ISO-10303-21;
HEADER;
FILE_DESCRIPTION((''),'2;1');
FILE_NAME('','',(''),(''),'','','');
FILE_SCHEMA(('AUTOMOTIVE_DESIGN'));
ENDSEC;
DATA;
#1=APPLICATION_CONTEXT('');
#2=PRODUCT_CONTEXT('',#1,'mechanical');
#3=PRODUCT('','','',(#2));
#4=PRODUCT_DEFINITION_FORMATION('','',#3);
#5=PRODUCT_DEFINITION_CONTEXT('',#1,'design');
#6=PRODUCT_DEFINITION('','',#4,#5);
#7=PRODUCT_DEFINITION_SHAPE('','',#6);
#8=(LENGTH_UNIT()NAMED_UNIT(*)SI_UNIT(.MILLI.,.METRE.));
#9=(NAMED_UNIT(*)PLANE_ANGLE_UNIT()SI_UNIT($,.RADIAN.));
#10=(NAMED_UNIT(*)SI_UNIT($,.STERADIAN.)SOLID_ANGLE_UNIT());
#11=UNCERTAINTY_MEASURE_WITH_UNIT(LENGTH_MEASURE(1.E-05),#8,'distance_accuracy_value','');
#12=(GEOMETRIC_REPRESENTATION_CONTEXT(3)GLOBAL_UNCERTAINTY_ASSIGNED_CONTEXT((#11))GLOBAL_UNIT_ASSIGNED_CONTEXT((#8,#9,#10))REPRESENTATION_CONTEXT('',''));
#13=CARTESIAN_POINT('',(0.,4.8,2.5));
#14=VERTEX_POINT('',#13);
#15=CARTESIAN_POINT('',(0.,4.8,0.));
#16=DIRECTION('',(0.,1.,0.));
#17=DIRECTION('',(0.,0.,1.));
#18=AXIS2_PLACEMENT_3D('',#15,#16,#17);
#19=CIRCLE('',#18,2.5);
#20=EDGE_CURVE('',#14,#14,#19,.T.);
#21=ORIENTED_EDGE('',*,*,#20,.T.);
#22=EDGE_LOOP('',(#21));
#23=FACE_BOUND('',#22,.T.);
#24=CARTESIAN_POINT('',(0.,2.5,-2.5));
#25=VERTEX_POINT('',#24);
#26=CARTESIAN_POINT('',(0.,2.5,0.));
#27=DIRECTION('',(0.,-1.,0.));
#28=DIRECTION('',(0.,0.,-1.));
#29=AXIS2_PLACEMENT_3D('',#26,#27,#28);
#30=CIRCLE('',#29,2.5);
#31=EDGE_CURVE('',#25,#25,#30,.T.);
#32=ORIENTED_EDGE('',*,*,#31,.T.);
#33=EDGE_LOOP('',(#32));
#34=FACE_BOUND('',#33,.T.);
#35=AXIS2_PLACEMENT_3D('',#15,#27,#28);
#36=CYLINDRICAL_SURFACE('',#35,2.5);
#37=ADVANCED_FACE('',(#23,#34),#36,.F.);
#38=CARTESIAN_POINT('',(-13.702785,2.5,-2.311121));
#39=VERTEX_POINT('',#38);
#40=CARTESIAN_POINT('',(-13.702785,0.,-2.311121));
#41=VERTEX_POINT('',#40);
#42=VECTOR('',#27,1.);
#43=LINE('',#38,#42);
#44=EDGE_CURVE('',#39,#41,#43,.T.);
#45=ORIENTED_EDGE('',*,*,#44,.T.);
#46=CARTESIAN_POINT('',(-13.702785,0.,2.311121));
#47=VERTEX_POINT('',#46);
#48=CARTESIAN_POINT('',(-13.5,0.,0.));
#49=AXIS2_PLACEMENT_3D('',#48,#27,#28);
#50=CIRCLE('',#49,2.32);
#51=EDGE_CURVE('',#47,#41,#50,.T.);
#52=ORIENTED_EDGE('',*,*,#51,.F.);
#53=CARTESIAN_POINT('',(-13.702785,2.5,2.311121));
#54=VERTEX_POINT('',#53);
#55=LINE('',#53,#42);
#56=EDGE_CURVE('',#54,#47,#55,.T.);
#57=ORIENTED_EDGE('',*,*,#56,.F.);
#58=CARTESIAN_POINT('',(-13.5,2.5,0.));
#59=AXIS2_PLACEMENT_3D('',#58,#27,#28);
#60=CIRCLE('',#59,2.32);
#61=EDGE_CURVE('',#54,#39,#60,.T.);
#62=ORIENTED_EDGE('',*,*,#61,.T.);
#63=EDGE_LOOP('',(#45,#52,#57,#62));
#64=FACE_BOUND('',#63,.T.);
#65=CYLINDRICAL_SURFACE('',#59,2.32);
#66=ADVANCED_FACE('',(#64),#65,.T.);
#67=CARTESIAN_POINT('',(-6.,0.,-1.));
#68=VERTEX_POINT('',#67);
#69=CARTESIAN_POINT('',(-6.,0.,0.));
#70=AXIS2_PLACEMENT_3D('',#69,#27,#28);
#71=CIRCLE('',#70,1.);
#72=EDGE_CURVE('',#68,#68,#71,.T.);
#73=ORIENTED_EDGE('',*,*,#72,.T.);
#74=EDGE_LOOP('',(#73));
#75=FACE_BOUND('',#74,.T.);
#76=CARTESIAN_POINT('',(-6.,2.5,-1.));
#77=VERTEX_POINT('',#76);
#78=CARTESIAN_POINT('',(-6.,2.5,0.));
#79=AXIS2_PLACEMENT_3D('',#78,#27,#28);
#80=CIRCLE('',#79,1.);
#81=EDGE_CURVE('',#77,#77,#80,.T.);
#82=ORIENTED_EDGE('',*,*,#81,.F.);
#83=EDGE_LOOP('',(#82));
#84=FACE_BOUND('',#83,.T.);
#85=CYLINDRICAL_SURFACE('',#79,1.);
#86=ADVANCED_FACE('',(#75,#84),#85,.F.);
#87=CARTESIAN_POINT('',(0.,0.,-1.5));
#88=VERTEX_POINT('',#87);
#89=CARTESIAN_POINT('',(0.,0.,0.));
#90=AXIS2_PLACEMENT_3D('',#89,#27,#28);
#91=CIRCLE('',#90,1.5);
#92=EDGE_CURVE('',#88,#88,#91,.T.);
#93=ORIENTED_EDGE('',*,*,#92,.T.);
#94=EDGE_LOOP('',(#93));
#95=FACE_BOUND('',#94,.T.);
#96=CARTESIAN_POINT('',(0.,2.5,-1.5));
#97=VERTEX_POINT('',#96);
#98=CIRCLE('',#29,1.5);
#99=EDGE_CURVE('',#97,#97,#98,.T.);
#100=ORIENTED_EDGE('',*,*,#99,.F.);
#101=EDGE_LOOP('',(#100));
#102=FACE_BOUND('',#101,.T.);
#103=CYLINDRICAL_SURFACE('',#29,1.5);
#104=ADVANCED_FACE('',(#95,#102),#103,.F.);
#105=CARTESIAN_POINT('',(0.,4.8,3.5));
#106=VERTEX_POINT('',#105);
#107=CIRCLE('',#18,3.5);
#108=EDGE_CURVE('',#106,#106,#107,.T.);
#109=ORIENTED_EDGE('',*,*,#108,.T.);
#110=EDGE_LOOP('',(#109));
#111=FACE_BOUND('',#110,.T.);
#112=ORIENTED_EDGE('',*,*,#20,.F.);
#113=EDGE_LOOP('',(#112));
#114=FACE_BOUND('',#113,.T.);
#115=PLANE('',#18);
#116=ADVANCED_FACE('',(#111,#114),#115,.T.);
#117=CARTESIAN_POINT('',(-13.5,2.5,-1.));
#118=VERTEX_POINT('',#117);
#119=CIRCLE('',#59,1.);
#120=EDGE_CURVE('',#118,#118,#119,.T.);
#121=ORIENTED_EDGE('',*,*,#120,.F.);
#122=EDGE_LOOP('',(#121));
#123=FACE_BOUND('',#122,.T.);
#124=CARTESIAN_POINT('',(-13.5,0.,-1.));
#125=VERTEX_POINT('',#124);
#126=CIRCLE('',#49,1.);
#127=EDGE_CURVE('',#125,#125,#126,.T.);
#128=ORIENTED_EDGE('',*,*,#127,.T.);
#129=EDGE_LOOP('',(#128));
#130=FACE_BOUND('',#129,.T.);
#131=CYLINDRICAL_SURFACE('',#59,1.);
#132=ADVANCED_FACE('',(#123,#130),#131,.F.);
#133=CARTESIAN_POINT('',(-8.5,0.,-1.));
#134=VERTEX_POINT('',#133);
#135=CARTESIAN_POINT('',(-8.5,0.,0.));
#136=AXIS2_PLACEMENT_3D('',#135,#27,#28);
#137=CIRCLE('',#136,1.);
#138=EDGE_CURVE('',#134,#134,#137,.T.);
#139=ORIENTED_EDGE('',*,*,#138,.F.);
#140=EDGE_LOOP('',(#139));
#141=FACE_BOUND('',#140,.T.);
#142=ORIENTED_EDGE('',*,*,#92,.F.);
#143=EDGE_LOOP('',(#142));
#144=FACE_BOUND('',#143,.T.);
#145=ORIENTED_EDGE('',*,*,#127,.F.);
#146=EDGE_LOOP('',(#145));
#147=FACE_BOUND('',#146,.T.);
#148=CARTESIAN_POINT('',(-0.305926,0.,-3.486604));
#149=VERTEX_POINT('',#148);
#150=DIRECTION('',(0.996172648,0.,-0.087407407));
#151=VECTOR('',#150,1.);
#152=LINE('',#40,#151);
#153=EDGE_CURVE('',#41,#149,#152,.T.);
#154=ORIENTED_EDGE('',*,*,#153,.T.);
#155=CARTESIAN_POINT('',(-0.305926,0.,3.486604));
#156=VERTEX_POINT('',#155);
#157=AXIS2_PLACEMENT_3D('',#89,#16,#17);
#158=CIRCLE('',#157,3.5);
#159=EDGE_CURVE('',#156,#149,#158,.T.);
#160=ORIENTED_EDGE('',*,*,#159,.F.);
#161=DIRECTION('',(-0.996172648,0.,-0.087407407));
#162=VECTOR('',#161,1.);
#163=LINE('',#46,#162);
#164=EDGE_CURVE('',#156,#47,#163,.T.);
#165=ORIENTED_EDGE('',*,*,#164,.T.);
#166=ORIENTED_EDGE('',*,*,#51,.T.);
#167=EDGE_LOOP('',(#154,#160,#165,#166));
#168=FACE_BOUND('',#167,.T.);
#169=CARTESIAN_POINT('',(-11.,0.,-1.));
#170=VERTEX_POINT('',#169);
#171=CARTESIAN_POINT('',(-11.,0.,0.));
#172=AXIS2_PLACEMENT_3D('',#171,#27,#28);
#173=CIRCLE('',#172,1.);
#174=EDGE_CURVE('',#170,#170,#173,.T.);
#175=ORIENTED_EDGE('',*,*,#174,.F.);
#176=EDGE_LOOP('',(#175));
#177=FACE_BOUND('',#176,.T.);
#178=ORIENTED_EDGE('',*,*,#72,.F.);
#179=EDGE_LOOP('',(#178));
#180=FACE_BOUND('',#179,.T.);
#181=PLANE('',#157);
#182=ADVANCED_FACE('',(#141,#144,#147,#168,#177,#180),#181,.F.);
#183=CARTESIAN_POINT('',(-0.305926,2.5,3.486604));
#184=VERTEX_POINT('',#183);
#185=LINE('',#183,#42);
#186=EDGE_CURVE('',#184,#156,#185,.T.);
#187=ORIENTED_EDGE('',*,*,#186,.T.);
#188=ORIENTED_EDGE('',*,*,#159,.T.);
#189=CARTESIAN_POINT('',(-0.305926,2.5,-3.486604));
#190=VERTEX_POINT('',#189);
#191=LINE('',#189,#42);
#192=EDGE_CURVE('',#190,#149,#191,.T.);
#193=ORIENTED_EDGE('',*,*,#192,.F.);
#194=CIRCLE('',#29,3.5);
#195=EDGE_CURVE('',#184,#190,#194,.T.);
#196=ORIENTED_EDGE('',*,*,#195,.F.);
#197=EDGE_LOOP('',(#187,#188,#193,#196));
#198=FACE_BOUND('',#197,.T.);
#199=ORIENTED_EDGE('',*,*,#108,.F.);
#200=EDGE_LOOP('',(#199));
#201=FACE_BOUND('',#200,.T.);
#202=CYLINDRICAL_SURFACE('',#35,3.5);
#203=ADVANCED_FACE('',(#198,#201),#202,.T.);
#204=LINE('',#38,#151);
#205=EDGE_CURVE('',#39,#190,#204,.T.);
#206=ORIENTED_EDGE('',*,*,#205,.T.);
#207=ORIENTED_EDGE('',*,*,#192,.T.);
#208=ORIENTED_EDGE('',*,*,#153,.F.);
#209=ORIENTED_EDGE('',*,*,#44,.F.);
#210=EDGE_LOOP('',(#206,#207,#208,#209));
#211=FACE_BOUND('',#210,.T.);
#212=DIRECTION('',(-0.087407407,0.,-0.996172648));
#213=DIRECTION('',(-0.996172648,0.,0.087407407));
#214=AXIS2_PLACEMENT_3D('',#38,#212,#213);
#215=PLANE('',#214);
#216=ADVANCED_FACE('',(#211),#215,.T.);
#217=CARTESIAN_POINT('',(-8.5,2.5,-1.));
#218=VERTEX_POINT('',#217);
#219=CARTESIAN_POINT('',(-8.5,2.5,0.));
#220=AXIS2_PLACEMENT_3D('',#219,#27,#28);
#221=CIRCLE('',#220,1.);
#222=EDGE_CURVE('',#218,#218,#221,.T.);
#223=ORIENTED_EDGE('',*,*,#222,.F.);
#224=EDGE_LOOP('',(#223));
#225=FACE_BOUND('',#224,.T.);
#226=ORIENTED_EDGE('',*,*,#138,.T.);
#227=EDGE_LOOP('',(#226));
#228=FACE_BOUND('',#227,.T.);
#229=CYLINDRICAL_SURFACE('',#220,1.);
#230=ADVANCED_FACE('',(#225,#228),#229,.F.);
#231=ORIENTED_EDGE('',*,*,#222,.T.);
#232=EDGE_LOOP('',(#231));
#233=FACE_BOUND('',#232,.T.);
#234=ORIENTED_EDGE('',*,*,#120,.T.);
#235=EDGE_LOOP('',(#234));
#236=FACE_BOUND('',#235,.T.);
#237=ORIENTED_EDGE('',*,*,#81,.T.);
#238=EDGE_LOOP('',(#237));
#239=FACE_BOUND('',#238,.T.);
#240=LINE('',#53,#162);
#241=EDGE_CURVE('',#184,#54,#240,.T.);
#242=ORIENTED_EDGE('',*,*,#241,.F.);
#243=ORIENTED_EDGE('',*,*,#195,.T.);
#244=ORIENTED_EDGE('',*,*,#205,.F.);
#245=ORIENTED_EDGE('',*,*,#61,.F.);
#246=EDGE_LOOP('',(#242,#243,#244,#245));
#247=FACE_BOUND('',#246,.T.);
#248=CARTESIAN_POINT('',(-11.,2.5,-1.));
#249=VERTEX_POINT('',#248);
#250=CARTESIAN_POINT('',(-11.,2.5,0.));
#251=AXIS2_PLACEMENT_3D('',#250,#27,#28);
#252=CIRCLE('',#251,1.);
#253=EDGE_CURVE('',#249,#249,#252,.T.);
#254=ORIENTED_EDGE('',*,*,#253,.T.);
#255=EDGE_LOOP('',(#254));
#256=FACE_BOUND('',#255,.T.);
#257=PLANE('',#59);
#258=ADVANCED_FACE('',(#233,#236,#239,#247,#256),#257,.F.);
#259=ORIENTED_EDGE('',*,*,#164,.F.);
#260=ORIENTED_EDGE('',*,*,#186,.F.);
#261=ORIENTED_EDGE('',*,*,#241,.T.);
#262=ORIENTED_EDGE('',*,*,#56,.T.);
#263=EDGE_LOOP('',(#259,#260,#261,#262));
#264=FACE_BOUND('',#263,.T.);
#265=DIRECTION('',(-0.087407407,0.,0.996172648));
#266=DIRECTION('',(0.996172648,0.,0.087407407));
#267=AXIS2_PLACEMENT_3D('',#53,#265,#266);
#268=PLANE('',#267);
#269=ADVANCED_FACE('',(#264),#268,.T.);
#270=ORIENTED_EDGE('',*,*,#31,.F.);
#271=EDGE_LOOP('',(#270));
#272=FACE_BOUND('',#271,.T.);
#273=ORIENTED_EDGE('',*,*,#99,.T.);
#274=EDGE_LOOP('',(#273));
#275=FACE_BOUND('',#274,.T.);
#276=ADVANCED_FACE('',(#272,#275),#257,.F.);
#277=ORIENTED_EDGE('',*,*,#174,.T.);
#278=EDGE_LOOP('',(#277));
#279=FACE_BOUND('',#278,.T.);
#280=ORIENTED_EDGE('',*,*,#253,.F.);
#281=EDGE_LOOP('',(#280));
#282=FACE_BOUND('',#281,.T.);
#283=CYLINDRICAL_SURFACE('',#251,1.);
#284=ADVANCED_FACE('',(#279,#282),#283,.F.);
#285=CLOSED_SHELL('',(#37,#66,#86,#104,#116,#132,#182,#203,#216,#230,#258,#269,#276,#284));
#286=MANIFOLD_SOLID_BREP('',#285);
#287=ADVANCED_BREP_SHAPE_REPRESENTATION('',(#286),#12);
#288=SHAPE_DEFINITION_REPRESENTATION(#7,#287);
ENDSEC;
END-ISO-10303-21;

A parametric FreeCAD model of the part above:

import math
import FreeCAD as App
import Part
import Sketcher

V = App.Vector
Q = App.Units.Quantity

doc = App.newDocument("Part")
body = doc.addObject("PartDesign::Body", "Body")

# Sketch on XZ plane
sketch1 = body.newObject("Sketcher::SketchObject", "Sketch")
sketch1.AttachmentSupport = (doc.getObject("XZ_Plane"), [""])
sketch1.MapMode = "FlatFace"
sketch1.addGeometry([
    Part.Circle(V(0, 0, 0), V(0, 0, 1), 3.5),
    Part.Circle(V(0, 0, 0), V(0, 0, 1), 2.5),
], False)
sketch1.addConstraint([
    Sketcher.Constraint("Coincident", 0, 3, -1, 1),
    Sketcher.Constraint("Coincident", 1, 3, -1, 1),
    Sketcher.Constraint("Diameter", 0, Q("7 mm")),
    Sketcher.Constraint("Diameter", 1, Q("5 mm")),
])
pad1 = body.newObject("PartDesign::Pad", "Pad")
pad1.Profile = sketch1
pad1.Length = 4.8
pad1.Reversed = True

# Sketch on XZ plane
sketch2 = body.newObject("Sketcher::SketchObject", "Sketch001")
sketch2.AttachmentSupport = (doc.getObject("XZ_Plane"), [""])
sketch2.MapMode = "FlatFace"
sketch2.addGeometry([
    Part.LineSegment(V(-0.3, 3.5, 0), V(-13.7, 2.3, 0)),  # 0
    Part.ArcOfCircle(Part.Circle(V(-13.5, 0, 0), V(0, 0, 1), 2.3), math.radians(95), math.radians(265)),  # 1
    Part.LineSegment(V(-13.7, -2.3, 0), V(-0.3, -3.5, 0)),  # 2
    Part.ArcOfCircle(Part.Circle(V(0, 0, 0), V(0, 0, 1), 3.5), math.radians(-95), math.radians(95)),  # 3
    Part.Circle(V(0, 0, 0), V(0, 0, 1), 1.5),  # 4
    Part.Circle(V(-6, 0, 0), V(0, 0, 1), 1),  # 5
    Part.Circle(V(-8.5, 0, 0), V(0, 0, 1), 1),  # 6
    Part.Circle(V(-11, 0, 0), V(0, 0, 1), 1),  # 7
    Part.Circle(V(-13.5, 0, 0), V(0, 0, 1), 1),  # 8
], False)
sketch2.addConstraint([
    Sketcher.Constraint("Tangent", 0, 2, 1, 1),
    Sketcher.Constraint("Tangent", 1, 2, 2, 1),
    Sketcher.Constraint("Tangent", 2, 2, 3, 1),
    Sketcher.Constraint("Tangent", 3, 2, 0, 1),
    Sketcher.Constraint("Coincident", 3, 3, -1, 1),
    Sketcher.Constraint("Coincident", 4, 3, -1, 1),
    Sketcher.Constraint("Coincident", 8, 3, 1, 3),
    Sketcher.Constraint("Equal", 5, 6),
    Sketcher.Constraint("Equal", 6, 7),
    Sketcher.Constraint("Equal", 7, 8),
    Sketcher.Constraint("PointOnObject", 1, 3, -1),
    Sketcher.Constraint("PointOnObject", 5, 3, -1),
    Sketcher.Constraint("PointOnObject", 6, 3, -1),
    Sketcher.Constraint("PointOnObject", 7, 3, -1),
    Sketcher.Constraint("Diameter", 4, Q("3 mm")),
    Sketcher.Constraint("Diameter", 5, Q("2 mm")),
    Sketcher.Constraint("Radius", 3, Q("3.5 mm")),
    Sketcher.Constraint("Radius", 1, Q("2.32 mm")),
    Sketcher.Constraint("DistanceX", 5, 3, -1, 1, Q("6 mm")),
    Sketcher.Constraint("DistanceX", 7, 3, -1, 1, Q("11 mm")),
    Sketcher.Constraint("DistanceX", 1, 3, 6, 3, Q("5 mm")),
    Sketcher.Constraint("DistanceX", 1, 3, -1, 1, Q("13.5 mm")),
])
pad2 = body.newObject("PartDesign::Pad", "Pad001")
pad2.Profile = sketch2
pad2.Length = 2.5
pad2.Reversed = True

doc.recompute()
